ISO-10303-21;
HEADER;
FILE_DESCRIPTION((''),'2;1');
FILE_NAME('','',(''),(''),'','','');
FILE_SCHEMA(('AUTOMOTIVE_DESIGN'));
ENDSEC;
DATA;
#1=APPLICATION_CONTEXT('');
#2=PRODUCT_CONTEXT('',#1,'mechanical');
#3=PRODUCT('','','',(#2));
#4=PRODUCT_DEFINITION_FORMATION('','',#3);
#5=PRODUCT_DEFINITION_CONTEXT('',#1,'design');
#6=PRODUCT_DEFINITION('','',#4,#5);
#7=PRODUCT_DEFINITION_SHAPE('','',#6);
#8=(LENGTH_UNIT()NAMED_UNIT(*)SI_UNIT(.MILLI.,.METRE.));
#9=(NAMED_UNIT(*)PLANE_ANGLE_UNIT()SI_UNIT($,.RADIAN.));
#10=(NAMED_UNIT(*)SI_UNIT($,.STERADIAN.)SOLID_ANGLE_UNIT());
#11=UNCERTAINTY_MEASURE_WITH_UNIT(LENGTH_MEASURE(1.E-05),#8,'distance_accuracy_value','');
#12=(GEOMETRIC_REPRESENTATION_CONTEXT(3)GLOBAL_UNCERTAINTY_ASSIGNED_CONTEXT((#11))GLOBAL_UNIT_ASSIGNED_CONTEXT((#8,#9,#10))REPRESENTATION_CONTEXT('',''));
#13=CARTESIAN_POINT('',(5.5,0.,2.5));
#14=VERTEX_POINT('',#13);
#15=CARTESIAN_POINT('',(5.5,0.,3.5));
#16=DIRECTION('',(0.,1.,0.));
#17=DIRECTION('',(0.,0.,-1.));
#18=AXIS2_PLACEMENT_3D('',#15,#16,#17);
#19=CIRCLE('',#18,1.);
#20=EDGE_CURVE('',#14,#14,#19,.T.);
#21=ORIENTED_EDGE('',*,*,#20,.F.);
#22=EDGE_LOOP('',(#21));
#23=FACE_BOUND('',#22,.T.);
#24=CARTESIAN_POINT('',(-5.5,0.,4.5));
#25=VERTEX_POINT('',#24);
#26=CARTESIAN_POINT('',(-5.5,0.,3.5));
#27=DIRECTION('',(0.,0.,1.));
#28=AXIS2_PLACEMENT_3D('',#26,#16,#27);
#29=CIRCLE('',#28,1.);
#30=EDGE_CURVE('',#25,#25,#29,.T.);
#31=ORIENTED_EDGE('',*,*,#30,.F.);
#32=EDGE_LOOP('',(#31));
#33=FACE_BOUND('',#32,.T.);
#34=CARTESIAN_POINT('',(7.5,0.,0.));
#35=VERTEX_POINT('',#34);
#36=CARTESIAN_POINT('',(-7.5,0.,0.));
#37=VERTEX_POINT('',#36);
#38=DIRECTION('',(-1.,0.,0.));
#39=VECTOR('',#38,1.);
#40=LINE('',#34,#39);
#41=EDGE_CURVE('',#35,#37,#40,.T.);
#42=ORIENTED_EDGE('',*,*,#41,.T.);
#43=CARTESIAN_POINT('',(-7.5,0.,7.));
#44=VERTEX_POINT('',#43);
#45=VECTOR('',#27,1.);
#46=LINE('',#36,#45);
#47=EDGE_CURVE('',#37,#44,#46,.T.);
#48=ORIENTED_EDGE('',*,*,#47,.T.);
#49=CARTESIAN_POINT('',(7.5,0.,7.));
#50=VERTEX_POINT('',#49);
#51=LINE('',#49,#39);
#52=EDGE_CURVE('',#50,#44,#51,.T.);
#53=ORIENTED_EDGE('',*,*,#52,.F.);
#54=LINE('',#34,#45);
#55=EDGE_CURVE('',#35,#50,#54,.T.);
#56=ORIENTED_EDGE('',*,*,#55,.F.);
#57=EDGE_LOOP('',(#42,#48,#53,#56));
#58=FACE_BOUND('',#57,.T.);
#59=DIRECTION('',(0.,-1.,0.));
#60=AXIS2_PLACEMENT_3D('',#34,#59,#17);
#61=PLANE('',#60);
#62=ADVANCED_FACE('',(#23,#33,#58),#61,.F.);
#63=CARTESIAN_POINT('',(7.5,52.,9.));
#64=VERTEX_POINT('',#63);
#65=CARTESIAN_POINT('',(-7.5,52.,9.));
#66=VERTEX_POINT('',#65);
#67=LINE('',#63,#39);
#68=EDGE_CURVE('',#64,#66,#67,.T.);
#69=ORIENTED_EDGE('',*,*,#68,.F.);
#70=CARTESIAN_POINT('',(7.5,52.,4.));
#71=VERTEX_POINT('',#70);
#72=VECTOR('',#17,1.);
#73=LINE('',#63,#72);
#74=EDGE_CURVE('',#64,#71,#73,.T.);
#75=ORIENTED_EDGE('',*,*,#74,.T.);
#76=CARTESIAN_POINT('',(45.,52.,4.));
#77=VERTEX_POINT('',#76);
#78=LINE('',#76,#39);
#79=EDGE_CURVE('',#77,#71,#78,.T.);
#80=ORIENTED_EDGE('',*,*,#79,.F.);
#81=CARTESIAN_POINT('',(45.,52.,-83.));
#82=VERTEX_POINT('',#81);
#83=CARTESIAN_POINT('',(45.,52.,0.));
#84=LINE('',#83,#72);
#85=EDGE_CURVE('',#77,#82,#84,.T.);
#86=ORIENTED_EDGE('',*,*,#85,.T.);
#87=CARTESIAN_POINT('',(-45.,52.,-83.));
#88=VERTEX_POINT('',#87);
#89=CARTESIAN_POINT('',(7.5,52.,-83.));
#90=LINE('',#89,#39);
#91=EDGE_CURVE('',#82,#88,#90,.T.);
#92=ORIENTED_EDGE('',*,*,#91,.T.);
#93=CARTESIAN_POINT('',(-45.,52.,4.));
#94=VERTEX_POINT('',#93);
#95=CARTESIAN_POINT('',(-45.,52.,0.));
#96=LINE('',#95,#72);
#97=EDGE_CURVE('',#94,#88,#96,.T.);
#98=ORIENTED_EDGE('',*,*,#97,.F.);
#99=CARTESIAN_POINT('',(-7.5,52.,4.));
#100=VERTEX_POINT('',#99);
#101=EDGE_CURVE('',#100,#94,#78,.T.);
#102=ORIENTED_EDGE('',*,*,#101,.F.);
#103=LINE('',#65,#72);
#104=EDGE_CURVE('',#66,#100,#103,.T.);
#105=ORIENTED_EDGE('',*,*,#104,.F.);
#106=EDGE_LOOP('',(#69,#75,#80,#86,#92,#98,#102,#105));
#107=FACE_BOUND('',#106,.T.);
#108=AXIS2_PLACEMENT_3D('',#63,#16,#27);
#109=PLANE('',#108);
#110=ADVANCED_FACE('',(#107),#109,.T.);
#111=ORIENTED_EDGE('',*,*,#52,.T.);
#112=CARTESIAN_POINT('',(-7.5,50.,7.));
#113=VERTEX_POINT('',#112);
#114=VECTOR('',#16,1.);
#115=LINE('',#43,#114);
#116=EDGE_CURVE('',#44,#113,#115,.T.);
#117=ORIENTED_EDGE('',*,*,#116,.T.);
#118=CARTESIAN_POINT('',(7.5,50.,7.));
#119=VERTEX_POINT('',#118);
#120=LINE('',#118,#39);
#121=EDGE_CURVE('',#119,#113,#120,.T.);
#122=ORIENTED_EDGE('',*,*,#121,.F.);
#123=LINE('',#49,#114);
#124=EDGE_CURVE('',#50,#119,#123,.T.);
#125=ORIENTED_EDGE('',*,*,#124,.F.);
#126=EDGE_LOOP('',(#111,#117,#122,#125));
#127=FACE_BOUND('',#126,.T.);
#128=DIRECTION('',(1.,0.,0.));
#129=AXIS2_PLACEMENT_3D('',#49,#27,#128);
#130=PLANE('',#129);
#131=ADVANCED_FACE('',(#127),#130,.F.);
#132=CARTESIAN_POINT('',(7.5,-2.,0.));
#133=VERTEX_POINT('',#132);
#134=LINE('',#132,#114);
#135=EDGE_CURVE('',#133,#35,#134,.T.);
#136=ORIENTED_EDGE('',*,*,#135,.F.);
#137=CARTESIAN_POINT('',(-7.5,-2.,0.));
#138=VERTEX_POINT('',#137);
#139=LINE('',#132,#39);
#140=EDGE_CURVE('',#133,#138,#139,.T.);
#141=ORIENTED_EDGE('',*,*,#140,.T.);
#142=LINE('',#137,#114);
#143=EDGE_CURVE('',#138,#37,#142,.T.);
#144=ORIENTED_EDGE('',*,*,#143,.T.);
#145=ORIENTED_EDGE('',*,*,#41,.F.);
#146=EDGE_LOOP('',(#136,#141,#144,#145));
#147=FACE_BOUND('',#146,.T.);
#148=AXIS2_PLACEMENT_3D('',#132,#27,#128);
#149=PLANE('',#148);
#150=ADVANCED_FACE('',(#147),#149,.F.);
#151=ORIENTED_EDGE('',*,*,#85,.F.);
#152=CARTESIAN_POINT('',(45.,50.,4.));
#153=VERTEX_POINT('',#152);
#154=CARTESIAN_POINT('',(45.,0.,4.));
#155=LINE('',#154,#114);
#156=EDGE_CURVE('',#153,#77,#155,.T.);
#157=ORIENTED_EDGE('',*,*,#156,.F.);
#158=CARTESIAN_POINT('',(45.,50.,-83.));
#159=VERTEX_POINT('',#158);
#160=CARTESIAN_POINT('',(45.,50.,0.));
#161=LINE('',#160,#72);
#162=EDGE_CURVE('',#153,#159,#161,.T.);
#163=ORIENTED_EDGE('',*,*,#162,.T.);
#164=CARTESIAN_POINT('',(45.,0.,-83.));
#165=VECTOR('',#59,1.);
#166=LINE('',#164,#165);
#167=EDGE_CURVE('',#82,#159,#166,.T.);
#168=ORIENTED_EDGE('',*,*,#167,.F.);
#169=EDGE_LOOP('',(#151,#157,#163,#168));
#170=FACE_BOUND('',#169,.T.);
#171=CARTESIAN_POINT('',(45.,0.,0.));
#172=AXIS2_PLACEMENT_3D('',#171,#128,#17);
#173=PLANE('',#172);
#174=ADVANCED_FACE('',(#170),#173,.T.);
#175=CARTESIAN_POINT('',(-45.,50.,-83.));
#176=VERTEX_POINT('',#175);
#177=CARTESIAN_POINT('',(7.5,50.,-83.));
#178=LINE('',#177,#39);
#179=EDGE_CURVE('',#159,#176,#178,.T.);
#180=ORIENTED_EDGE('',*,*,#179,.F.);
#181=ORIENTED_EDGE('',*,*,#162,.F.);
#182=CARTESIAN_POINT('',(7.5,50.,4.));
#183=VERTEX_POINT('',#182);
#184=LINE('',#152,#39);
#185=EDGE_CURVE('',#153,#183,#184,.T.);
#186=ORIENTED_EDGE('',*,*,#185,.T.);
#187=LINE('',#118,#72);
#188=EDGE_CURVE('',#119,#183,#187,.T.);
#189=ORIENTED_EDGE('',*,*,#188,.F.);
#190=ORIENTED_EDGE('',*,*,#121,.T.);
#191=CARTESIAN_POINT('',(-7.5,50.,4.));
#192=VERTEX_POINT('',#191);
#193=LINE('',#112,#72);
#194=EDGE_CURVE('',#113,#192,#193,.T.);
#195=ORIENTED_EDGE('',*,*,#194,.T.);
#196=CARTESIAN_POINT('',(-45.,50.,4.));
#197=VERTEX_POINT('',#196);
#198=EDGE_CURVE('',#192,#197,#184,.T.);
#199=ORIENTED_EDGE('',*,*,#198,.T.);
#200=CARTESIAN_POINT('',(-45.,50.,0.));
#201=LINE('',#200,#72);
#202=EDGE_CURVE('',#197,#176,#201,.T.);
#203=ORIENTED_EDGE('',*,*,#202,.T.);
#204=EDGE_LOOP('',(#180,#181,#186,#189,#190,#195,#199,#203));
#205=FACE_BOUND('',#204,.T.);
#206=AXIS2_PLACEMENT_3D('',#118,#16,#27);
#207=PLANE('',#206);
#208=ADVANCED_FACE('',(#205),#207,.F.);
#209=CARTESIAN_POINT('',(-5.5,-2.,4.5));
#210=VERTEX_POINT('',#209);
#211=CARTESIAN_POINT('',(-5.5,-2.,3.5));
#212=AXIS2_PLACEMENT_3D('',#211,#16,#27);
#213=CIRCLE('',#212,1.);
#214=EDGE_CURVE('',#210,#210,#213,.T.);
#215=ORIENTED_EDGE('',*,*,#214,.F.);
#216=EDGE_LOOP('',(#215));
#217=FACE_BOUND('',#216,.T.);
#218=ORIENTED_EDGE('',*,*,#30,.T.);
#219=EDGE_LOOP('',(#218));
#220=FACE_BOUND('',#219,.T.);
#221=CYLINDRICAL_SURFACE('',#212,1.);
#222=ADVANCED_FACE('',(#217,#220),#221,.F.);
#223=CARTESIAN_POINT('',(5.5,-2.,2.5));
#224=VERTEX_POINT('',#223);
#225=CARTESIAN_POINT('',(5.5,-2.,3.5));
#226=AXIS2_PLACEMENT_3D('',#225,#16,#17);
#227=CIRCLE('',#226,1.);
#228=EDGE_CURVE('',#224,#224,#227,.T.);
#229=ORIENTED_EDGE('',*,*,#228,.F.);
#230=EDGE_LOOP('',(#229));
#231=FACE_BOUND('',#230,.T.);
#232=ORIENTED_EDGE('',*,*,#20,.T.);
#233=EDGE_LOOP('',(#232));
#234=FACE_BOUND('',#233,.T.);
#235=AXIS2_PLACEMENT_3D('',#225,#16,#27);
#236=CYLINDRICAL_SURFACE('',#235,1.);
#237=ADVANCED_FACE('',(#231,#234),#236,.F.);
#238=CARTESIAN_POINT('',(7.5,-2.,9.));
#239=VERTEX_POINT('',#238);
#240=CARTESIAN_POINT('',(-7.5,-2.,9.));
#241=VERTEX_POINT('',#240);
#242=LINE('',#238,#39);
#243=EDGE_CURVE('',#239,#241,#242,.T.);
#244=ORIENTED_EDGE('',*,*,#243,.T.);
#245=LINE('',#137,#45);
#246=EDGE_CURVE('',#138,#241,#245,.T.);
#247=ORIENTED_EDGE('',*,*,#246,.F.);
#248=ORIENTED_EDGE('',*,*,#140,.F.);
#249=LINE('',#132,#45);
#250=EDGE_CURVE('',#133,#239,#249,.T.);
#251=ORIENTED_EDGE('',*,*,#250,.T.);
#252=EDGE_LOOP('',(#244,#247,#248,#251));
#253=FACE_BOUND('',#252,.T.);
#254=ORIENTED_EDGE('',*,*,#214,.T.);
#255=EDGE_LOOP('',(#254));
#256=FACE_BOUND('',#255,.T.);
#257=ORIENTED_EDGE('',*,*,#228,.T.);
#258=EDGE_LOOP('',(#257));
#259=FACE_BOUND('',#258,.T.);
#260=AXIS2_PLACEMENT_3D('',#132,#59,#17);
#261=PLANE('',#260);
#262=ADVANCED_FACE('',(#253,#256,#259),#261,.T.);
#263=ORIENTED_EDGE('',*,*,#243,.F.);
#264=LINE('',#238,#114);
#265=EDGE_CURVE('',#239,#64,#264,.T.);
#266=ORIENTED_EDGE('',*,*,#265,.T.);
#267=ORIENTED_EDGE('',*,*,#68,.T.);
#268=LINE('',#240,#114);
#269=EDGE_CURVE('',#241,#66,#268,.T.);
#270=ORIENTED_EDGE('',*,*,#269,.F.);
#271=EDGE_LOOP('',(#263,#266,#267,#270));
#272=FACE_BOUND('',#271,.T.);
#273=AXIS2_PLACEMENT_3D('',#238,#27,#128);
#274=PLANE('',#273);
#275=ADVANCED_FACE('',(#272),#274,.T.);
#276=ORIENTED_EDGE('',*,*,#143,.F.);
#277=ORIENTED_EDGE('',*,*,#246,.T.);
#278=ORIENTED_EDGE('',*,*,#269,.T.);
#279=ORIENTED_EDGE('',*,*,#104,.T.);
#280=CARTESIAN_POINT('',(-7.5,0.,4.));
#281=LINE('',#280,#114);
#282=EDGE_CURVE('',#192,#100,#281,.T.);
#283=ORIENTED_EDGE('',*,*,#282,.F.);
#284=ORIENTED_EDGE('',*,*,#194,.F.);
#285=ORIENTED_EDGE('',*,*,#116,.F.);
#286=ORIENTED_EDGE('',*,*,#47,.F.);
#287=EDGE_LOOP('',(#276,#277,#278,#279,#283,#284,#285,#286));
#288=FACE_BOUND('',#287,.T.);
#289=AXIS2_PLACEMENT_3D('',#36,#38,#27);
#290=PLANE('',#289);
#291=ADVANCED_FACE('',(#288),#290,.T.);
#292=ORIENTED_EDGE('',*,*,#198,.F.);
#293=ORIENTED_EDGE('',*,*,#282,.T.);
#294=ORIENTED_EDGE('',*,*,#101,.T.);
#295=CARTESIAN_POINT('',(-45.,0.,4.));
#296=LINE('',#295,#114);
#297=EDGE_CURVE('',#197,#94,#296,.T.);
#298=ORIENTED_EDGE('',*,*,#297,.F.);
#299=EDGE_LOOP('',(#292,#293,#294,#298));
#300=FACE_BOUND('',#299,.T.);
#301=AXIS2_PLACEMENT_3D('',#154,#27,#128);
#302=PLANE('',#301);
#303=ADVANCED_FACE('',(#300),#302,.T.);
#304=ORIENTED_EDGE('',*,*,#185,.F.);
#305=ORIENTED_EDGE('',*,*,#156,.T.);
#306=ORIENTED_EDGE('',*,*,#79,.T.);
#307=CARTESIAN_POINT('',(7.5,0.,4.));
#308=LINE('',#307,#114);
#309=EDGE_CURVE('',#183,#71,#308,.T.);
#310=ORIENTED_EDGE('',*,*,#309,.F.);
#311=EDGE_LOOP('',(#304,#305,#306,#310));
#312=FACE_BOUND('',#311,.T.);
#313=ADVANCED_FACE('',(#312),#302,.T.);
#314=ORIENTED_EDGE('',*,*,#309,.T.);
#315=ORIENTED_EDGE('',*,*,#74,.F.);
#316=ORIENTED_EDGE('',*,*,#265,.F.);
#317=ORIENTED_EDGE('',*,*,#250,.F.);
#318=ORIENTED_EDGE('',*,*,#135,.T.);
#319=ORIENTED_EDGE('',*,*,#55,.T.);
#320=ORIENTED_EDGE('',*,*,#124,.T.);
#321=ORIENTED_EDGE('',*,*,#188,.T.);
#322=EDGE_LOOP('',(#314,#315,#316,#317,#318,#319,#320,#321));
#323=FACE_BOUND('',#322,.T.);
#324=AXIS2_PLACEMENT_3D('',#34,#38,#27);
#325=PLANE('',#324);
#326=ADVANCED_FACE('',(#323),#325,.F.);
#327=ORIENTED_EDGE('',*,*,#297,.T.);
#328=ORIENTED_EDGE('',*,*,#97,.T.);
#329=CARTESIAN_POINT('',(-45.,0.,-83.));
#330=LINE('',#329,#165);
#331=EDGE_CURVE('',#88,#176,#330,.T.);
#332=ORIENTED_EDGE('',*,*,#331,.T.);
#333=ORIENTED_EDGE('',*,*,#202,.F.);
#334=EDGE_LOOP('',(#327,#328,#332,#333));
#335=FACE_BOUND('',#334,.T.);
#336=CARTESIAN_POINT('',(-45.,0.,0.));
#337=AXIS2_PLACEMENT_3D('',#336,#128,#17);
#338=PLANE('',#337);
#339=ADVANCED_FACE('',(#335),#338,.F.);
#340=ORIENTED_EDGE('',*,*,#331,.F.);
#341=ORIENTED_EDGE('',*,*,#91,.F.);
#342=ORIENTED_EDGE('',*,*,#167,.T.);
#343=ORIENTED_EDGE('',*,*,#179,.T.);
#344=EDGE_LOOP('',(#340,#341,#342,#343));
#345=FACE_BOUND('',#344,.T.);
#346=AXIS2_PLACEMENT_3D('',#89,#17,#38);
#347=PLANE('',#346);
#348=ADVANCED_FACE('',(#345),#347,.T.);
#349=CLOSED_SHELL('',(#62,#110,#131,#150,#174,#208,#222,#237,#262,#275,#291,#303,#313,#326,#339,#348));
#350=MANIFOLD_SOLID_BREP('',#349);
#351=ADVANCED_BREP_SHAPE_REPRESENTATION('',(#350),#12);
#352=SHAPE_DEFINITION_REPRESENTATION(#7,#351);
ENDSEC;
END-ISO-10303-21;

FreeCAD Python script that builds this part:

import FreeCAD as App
import Part
import Sketcher
Q = App.Units.Quantity


def add_polygon(sketch, points):
    """Adds a closed chain of lines whose ends are joined by coincident constraints."""
    first, n = sketch.GeometryCount, len(points)
    for a, b in zip(points, points[1:] + points[:1]):
        sketch.addGeometry(Part.LineSegment(App.Vector(*a, 0), App.Vector(*b, 0)), False)
    for i in range(n):
        sketch.addConstraint(Sketcher.Constraint("Coincident", first + i, 2, first + (i + 1) % n, 1))

doc = App.newDocument("Part")
params = doc.addObject("Spreadsheet::Sheet", "Params")
for row, (alias, value) in enumerate([
    ("sketch1_width", "50 mm"),
    ("sketch1_width2", "2 mm"),
    ("sketch1_height", "7 mm"),
    ("sketch1_height2", "90 mm"),
    ("sketch1_height3", "92 mm"),
    ("pad1_length", "15 mm"),
    ("sketch2_width", "2 mm"),
    ("sketch2_height", "87 mm"),
    ("pad2_length", "90 mm"),
    ("sketch3_diameter", "2 mm"),
], start=1):
    params.set(f"A{row}", alias)
    params.set(f"B{row}", "=" + value)
    params.setAlias(f"B{row}", alias)

body = doc.addObject("PartDesign::Body", "Body")

# Sketch on YZ plane
sketch1 = body.newObject("Sketcher::SketchObject", "Sketch")
sketch1.AttachmentSupport = (doc.getObject("YZ_Plane"), [""])
sketch1.MapMode = "FlatFace"
add_polygon(sketch1, [(0, 0), (0, 7), (50, 7), (50, -83), (52, -83), (52, 9), (-2, 9), (-2, 0)])  # lines 0-7
sketch1.addConstraint([
    Sketcher.Constraint("Vertical", 0),
    Sketcher.Constraint("Horizontal", 1),
    Sketcher.Constraint("Vertical", 2),
    Sketcher.Constraint("Horizontal", 3),
    Sketcher.Constraint("Vertical", 4),
    Sketcher.Constraint("Horizontal", 5),
    Sketcher.Constraint("Vertical", 6),
    Sketcher.Constraint("Horizontal", 7),
    Sketcher.Constraint("Coincident", 7, 2, -1, 1),
    Sketcher.Constraint("Equal", 3, 7),
    Sketcher.Constraint("DistanceX", 1, 1, 1, 2, Q("50 mm")),
    Sketcher.Constraint("DistanceX", 3, 1, 3, 2, Q("2 mm")),
    Sketcher.Constraint("DistanceY", 0, 1, 0, 2, Q("7 mm")),
    Sketcher.Constraint("DistanceY", 2, 2, 2, 1, Q("90 mm")),
    Sketcher.Constraint("DistanceY", 4, 1, 4, 2, Q("92 mm")),
])
sketch1.setExpression("Constraints[18]", "Params.sketch1_width")
sketch1.setExpression("Constraints[19]", "Params.sketch1_width2")
sketch1.setExpression("Constraints[20]", "Params.sketch1_height")
sketch1.setExpression("Constraints[21]", "Params.sketch1_height2")
sketch1.setExpression("Constraints[22]", "Params.sketch1_height3")
pad1 = body.newObject("PartDesign::Pad", "Pad")
pad1.Profile = sketch1
pad1.setExpression("Length", "Params.pad1_length")
pad1.Midplane = True

# Sketch on YZ plane
sketch2 = body.newObject("Sketcher::SketchObject", "Sketch001")
sketch2.AttachmentSupport = (doc.getObject("YZ_Plane"), [""])
sketch2.MapMode = "FlatFace"
add_polygon(sketch2, [(52, 4), (50, 4), (50, -83), (52, -83)])  # lines 0-3
sketch2.addConstraint([
    Sketcher.Constraint("Horizontal", 0),
    Sketcher.Constraint("Vertical", 1),
    Sketcher.Constraint("Horizontal", 2),
    Sketcher.Constraint("Vertical", 3),
    Sketcher.Constraint("DistanceX", 0, 2, 0, 1, Q("2 mm")),
    Sketcher.Constraint("DistanceY", 1, 2, 1, 1, Q("87 mm")),
    Sketcher.Constraint("DistanceX", -1, 1, 0, 2, Q("50 mm")),
    Sketcher.Constraint("DistanceY", -1, 1, 0, 2, Q("4 mm")),
])
sketch2.setExpression("Constraints[8]", "Params.sketch2_width")
sketch2.setExpression("Constraints[9]", "Params.sketch2_height")
pad2 = body.newObject("PartDesign::Pad", "Pad001")
pad2.Profile = sketch2
pad2.setExpression("Length", "Params.pad2_length")
pad2.Midplane = True

# Sketch on XZ plane
sketch3 = body.newObject("Sketcher::SketchObject", "Sketch002")
sketch3.AttachmentSupport = (doc.getObject("XZ_Plane"), [""])
sketch3.MapMode = "FlatFace"
sketch3.addGeometry([
    Part.Circle(App.Vector(-5.5, 3.5, 0), App.Vector(0, 0, 1), 1),
    Part.Circle(App.Vector(5.5, 3.5, 0), App.Vector(0, 0, 1), 1),
], False)
sketch3.addConstraint([
    Sketcher.Constraint("Equal", 0, 1),
    Sketcher.Constraint("Symmetric", 0, 3, 1, 3, -2),
    Sketcher.Constraint("Diameter", 0, Q("2 mm")),
    Sketcher.Constraint("DistanceX", 0, 3, 1, 3, Q("11 mm")),
    Sketcher.Constraint("DistanceY", -1, 1, 0, 3, Q("3.5 mm")),
])
sketch3.setExpression("Constraints[2]", "Params.sketch3_diameter")
pocket1 = body.newObject("PartDesign::Pocket", "Pocket")
pocket1.Profile = sketch3
pocket1.Type = "ThroughAll"
pocket1.Reversed = True

doc.recompute()
